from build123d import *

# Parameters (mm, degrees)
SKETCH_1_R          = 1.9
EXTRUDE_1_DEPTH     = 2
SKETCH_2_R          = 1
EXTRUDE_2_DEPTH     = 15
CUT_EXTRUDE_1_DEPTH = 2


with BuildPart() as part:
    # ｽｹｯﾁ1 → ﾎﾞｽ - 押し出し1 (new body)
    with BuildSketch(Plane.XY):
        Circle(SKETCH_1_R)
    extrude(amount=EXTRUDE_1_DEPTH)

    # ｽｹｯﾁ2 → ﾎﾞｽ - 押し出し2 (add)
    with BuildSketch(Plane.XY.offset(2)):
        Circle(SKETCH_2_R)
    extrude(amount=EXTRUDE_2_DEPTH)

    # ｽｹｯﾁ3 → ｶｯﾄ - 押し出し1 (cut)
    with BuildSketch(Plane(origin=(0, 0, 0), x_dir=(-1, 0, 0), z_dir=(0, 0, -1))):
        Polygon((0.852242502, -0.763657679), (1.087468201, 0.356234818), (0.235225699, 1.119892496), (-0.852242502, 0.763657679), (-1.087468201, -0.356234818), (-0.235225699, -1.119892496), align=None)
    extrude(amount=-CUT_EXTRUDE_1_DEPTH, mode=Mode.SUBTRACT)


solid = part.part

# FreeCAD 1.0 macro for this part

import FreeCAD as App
import Part
import Sketcher

V = App.Vector
Q = App.Units.Quantity

doc = App.newDocument("Part")
body = doc.addObject("PartDesign::Body", "Body")

sketch1 = body.newObject("Sketcher::SketchObject", "Sketch")
sketch1.AttachmentSupport = (doc.getObject("XY_Plane"), [""])
sketch1.MapMode = "FlatFace"
sketch1.addGeometry(Part.Circle(V(0, 0, 0), V(0, 0, 1), 1.9), False)
sketch1.addConstraint(Sketcher.Constraint("Coincident", 0, 3, -1, 1))
sketch1.addConstraint(Sketcher.Constraint("Diameter", 0, Q("3.8 mm")))
pad1 = body.newObject("PartDesign::Pad", "Pad")
pad1.Profile = sketch1
pad1.Length = 2

sketch2 = body.newObject("Sketcher::SketchObject", "Sketch001")
sketch2.AttachmentSupport = (doc.getObject("XY_Plane"), [""])
sketch2.MapMode = "FlatFace"
sketch2.AttachmentOffset = App.Placement(V(0, 0, 2), App.Rotation())
sketch2.addGeometry(Part.Circle(V(0, 0, 0), V(0, 0, 1), 1), False)
sketch2.addConstraint(Sketcher.Constraint("Coincident", 0, 3, -1, 1))
sketch2.addConstraint(Sketcher.Constraint("Diameter", 0, Q("2 mm")))
pad2 = body.newObject("PartDesign::Pad", "Pad001")
pad2.Profile = sketch2
pad2.Length = 15

sketch3 = body.newObject("Sketcher::SketchObject", "Sketch002")
sketch3.AttachmentSupport = (doc.getObject("XY_Plane"), [""])
sketch3.MapMode = "FlatFace"
sketch3.addGeometry(Part.LineSegment(V(-0.9, -0.8, 0), V(-1.1, 0.4, 0)), False)
sketch3.addGeometry(Part.LineSegment(V(-1.1, 0.4, 0), V(-0.2, 1.1, 0)), False)
sketch3.addGeometry(Part.LineSegment(V(-0.2, 1.1, 0), V(0.9, 0.8, 0)), False)
sketch3.addGeometry(Part.LineSegment(V(0.9, 0.8, 0), V(1.1, -0.4, 0)), False)
sketch3.addGeometry(Part.LineSegment(V(1.1, -0.4, 0), V(0.2, -1.1, 0)), False)
sketch3.addGeometry(Part.LineSegment(V(0.2, -1.1, 0), V(-0.9, -0.8, 0)), False)
sketch3.addConstraint(Sketcher.Constraint("Coincident", 0, 2, 1, 1))
sketch3.addConstraint(Sketcher.Constraint("Coincident", 1, 2, 2, 1))
sketch3.addConstraint(Sketcher.Constraint("Coincident", 2, 2, 3, 1))
sketch3.addConstraint(Sketcher.Constraint("Coincident", 3, 2, 4, 1))
sketch3.addConstraint(Sketcher.Constraint("Coincident", 4, 2, 5, 1))
sketch3.addConstraint(Sketcher.Constraint("Coincident", 5, 2, 0, 1))
sketch3.addConstraint(Sketcher.Constraint("Symmetric", 0, 2, 3, 2, -1, 1))
sketch3.addConstraint(Sketcher.Constraint("Symmetric", 1, 2, 4, 2, -1, 1))
sketch3.addConstraint(Sketcher.Constraint("Symmetric", 2, 2, 5, 2, -1, 1))
sketch3.addConstraint(Sketcher.Constraint("Equal", 0, 1))
sketch3.addConstraint(Sketcher.Constraint("Equal", 1, 2))
sketch3.addConstraint(Sketcher.Constraint("Distance", 0, Q("1.14433 mm")))
sketch3.addConstraint(Sketcher.Constraint("DistanceX", 0, 2, -1, 1, Q("1.087468 mm")))
sketch3.addConstraint(Sketcher.Constraint("DistanceX", 1, 2, 2, 2, Q("1.087468 mm")))
sketch3.addConstraint(Sketcher.Constraint("DistanceX", 0, 2, 2, 2, Q("1.939711 mm")))
pocket1 = body.newObject("PartDesign::Pocket", "Pocket")
pocket1.Profile = sketch3
pocket1.Length = 2
pocket1.Reversed = True

doc.recompute()
